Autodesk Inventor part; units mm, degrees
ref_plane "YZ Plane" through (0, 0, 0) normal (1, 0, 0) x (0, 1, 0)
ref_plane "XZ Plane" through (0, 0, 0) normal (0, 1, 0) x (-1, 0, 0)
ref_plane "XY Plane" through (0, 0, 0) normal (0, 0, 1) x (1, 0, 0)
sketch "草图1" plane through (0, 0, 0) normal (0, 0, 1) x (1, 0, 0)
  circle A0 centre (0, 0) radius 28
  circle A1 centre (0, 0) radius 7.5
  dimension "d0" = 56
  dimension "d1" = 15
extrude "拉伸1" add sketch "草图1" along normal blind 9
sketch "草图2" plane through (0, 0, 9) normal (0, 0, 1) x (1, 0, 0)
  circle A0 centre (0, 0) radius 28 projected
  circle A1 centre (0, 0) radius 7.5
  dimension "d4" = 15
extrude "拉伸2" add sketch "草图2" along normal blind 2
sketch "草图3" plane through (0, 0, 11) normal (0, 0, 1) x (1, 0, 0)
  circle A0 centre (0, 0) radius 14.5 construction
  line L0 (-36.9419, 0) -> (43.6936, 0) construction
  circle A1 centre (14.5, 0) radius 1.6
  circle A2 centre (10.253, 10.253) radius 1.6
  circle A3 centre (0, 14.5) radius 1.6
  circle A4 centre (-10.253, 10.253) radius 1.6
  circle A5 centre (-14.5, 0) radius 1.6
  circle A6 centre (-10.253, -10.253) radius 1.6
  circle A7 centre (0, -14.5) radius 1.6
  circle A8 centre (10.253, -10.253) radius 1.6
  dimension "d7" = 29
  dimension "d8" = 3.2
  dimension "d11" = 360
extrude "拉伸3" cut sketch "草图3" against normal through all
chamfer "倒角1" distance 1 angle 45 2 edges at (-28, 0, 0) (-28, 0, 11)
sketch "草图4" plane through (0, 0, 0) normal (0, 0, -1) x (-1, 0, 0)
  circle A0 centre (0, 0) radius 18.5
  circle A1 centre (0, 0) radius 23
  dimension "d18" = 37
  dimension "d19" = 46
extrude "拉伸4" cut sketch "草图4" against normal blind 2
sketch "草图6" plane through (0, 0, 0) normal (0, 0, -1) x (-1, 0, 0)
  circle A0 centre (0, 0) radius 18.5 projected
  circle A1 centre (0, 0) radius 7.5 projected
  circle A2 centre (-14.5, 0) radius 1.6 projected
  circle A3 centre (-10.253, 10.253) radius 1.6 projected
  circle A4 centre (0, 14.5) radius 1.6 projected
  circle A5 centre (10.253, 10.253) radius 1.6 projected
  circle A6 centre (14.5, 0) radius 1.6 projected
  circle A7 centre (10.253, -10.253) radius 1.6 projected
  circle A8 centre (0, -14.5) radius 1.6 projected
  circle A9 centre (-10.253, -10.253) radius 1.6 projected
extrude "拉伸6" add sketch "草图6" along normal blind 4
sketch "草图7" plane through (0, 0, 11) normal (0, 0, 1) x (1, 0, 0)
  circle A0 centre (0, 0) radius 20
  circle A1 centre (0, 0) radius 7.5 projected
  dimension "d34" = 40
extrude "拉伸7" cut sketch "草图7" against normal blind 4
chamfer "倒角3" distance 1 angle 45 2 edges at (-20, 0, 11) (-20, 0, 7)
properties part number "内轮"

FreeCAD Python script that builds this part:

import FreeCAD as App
import Part
import Sketcher
Q = App.Units.Quantity


def edges_at(feature, points):
    """Names of the edges that pass closest to the given points."""
    edges = feature.Shape.Edges
    near = lambda p: min(range(len(edges)), key=lambda i: edges[i].distToShape(Part.Vertex(*p))[0])
    return sorted({f"Edge{near(p) + 1}" for p in points})

doc = App.newDocument("Part")
params = doc.addObject("Spreadsheet::Sheet", "Params")
for row, (alias, value) in enumerate([
    ("sketch1_diameter", "56 mm"),
    ("sketch1_diameter2", "15 mm"),
    ("pad1_length", "9 mm"),
    ("sketch2_diameter", "15 mm"),
    ("sketch2_diameter2", "56 mm"),
    ("pad2_length", "2 mm"),
    ("sketch3_diameter", "3.2 mm"),
    ("chamfer_size", "1 mm"),
    ("sketch4_diameter", "46 mm"),
    ("sketch4_diameter2", "37 mm"),
    ("pocket2_length", "2 mm"),
    ("sketch5_diameter", "37 mm"),
    ("sketch5_diameter2", "15 mm"),
    ("sketch5_diameter3", "3.2 mm"),
    ("pad3_length", "4 mm"),
    ("sketch6_diameter", "40 mm"),
    ("sketch6_diameter2", "15 mm"),
    ("pocket3_length", "4 mm"),
    ("chamfer2_size", "1 mm"),
], start=1):
    params.set(f"A{row}", alias)
    params.set(f"B{row}", "=" + value)
    params.setAlias(f"B{row}", alias)

body = doc.addObject("PartDesign::Body", "Body")

sketch1 = body.newObject("Sketcher::SketchObject", "Sketch")
sketch1.AttachmentSupport = (doc.getObject("XY_Plane"), [""])
sketch1.MapMode = "FlatFace"
sketch1.addGeometry([
    Part.Circle(App.Vector(0, 0, 0), App.Vector(0, 0, 1), 28),
    Part.Circle(App.Vector(0, 0, 0), App.Vector(0, 0, 1), 8),
], False)
sketch1.addConstraint([
    Sketcher.Constraint("Coincident", 0, 3, -1, 1),
    Sketcher.Constraint("Coincident", 1, 3, -1, 1),
    Sketcher.Constraint("Diameter", 0, Q("56 mm")),
    Sketcher.Constraint("Diameter", 1, Q("15 mm")),
])
sketch1.setExpression("Constraints[2]", "Params.sketch1_diameter")
sketch1.setExpression("Constraints[3]", "Params.sketch1_diameter2")
pad1 = body.newObject("PartDesign::Pad", "Pad")
pad1.Profile = sketch1
pad1.setExpression("Length", "Params.pad1_length")

sketch2 = body.newObject("Sketcher::SketchObject", "Sketch001")
sketch2.AttachmentSupport = (doc.getObject("XY_Plane"), [""])
sketch2.MapMode = "FlatFace"
sketch2.AttachmentOffset = App.Placement(App.Vector(0, 0, 9), App.Rotation())
sketch2.addGeometry([
    Part.Circle(App.Vector(0, 0, 0), App.Vector(0, 0, 1), 28),
    Part.Circle(App.Vector(0, 0, 0), App.Vector(0, 0, 1), 8),
], False)
sketch2.addConstraint([
    Sketcher.Constraint("Coincident", 0, 3, -1, 1),
    Sketcher.Constraint("Coincident", 1, 3, -1, 1),
    Sketcher.Constraint("Diameter", 1, Q("15 mm")),
    Sketcher.Constraint("Diameter", 0, Q("56 mm")),
])
sketch2.setExpression("Constraints[2]", "Params.sketch2_diameter")
sketch2.setExpression("Constraints[3]", "Params.sketch2_diameter2")
pad2 = body.newObject("PartDesign::Pad", "Pad001")
pad2.Profile = sketch2
pad2.setExpression("Length", "Params.pad2_length")

sketch3 = body.newObject("Sketcher::SketchObject", "Sketch002")
sketch3.AttachmentSupport = (doc.getObject("XY_Plane"), [""])
sketch3.MapMode = "FlatFace"
sketch3.AttachmentOffset = App.Placement(App.Vector(0, 0, 11), App.Rotation())
sketch3.addGeometry([
    Part.Circle(App.Vector(14.5, 0, 0), App.Vector(0, 0, 1), 1.6),
    Part.Circle(App.Vector(10.3, 10.3, 0), App.Vector(0, 0, 1), 1.6),
    Part.Circle(App.Vector(0, 14.5, 0), App.Vector(0, 0, 1), 1.6),
    Part.Circle(App.Vector(-10.3, 10.3, 0), App.Vector(0, 0, 1), 1.6),
    Part.Circle(App.Vector(-14.5, 0, 0), App.Vector(0, 0, 1), 1.6),
    Part.Circle(App.Vector(-10.3, -10.3, 0), App.Vector(0, 0, 1), 1.6),
    Part.Circle(App.Vector(0, -14.5, 0), App.Vector(0, 0, 1), 1.6),
    Part.Circle(App.Vector(10.3, -10.3, 0), App.Vector(0, 0, 1), 1.6),
], False)
sketch3.addConstraint([
    Sketcher.Constraint("Equal", 0, 1),
    Sketcher.Constraint("Equal", 1, 2),
    Sketcher.Constraint("Equal", 2, 3),
    Sketcher.Constraint("Equal", 3, 4),
    Sketcher.Constraint("Equal", 4, 5),
    Sketcher.Constraint("Equal", 5, 6),
    Sketcher.Constraint("Equal", 6, 7),
    Sketcher.Constraint("Symmetric", 0, 3, 4, 3, -1, 1),
    Sketcher.Constraint("Symmetric", 1, 3, 5, 3, -1, 1),
    Sketcher.Constraint("Symmetric", 2, 3, 6, 3, -1, 1),
    Sketcher.Constraint("Symmetric", 3, 3, 7, 3, -1, 1),
    Sketcher.Constraint("Symmetric", 1, 3, 3, 3, -2),
    Sketcher.Constraint("PointOnObject", 0, 3, -1),
    Sketcher.Constraint("PointOnObject", 2, 3, -2),
    Sketcher.Constraint("Diameter", 0, Q("3.2 mm")),
    Sketcher.Constraint("DistanceX", 4, 3, 0, 3, Q("29 mm")),
    Sketcher.Constraint("DistanceY", -1, 1, 2, 3, Q("14.5 mm")),
    Sketcher.Constraint("DistanceX", -1, 1, 1, 3, Q("10.253 mm")),
    Sketcher.Constraint("DistanceY", -1, 1, 1, 3, Q("10.253 mm")),
])
sketch3.setExpression("Constraints[14]", "Params.sketch3_diameter")
pocket1 = body.newObject("PartDesign::Pocket", "Pocket")
pocket1.Profile = sketch3
pocket1.Type = "ThroughAll"
doc.recompute()

chamfer = body.newObject("PartDesign::Chamfer", "Chamfer")
chamfer.Base = (pocket1, edges_at(pocket1, [(-28, 0, 0), (-28, 0, 11)]))
chamfer.setExpression("Size", "Params.chamfer_size")

sketch4 = body.newObject("Sketcher::SketchObject", "Sketch003")
sketch4.AttachmentSupport = (doc.getObject("XY_Plane"), [""])
sketch4.MapMode = "FlatFace"
sketch4.addGeometry([
    Part.Circle(App.Vector(0, 0, 0), App.Vector(0, 0, 1), 23),
    Part.Circle(App.Vector(0, 0, 0), App.Vector(0, 0, 1), 18),
], False)
sketch4.addConstraint([
    Sketcher.Constraint("Coincident", 0, 3, -1, 1),
    Sketcher.Constraint("Coincident", 1, 3, -1, 1),
    Sketcher.Constraint("Diameter", 0, Q("46 mm")),
    Sketcher.Constraint("Diameter", 1, Q("37 mm")),
])
sketch4.setExpression("Constraints[2]", "Params.sketch4_diameter")
sketch4.setExpression("Constraints[3]", "Params.sketch4_diameter2")
pocket2 = body.newObject("PartDesign::Pocket", "Pocket001")
pocket2.Profile = sketch4
pocket2.setExpression("Length", "Params.pocket2_length")
pocket2.Reversed = True

sketch5 = body.newObject("Sketcher::SketchObject", "Sketch004")
sketch5.AttachmentSupport = (doc.getObject("XY_Plane"), [""])
sketch5.MapMode = "FlatFace"
sketch5.addGeometry([
    Part.Circle(App.Vector(0, 0, 0), App.Vector(0, 0, 1), 18.5),
    Part.Circle(App.Vector(10.3, -10.3, 0), App.Vector(0, 0, 1), 1.6),
    Part.Circle(App.Vector(0, -14.5, 0), App.Vector(0, 0, 1), 1.6),
    Part.Circle(App.Vector(-10.3, -10.3, 0), App.Vector(0, 0, 1), 1.6),
    Part.Circle(App.Vector(14.5, 0, 0), App.Vector(0, 0, 1), 1.6),
    Part.Circle(App.Vector(10.3, 10.3, 0), App.Vector(0, 0, 1), 1.6),
    Part.Circle(App.Vector(0, 0, 0), App.Vector(0, 0, 1), 7.5),
    Part.Circle(App.Vector(-14.5, 0, 0), App.Vector(0, 0, 1), 1.6),
    Part.Circle(App.Vector(0, 14.5, 0), App.Vector(0, 0, 1), 1.6),
    Part.Circle(App.Vector(-10.3, 10.3, 0), App.Vector(0, 0, 1), 1.6),
], False)
sketch5.addConstraint([
    Sketcher.Constraint("Coincident", 0, 3, -1, 1),
    Sketcher.Constraint("Coincident", 6, 3, -1, 1),
    Sketcher.Constraint("Equal", 1, 2),
    Sketcher.Constraint("Equal", 2, 3),
    Sketcher.Constraint("Equal", 3, 4),
    Sketcher.Constraint("Equal", 4, 5),
    Sketcher.Constraint("Equal", 5, 7),
    Sketcher.Constraint("Equal", 7, 8),
    Sketcher.Constraint("Equal", 8, 9),
    Sketcher.Constraint("Symmetric", 3, 3, 5, 3, -1, 1),
    Sketcher.Constraint("Symmetric", 4, 3, 7, 3, -1, 1),
    Sketcher.Constraint("Symmetric", 2, 3, 8, 3, -1, 1),
    Sketcher.Constraint("Symmetric", 1, 3, 9, 3, -1, 1),
    Sketcher.Constraint("Symmetric", 1, 3, 3, 3, -2),
    Sketcher.Constraint("PointOnObject", 2, 3, -2),
    Sketcher.Constraint("PointOnObject", 4, 3, -1),
    Sketcher.Constraint("Diameter", 0, Q("37 mm")),
    Sketcher.Constraint("Diameter", 6, Q("15 mm")),
    Sketcher.Constraint("Diameter", 1, Q("3.2 mm")),
    Sketcher.Constraint("DistanceY", 2, 3, -1, 1, Q("14.5 mm")),
    Sketcher.Constraint("DistanceX", -1, 1, 4, 3, Q("14.5 mm")),
    Sketcher.Constraint("DistanceX", -1, 1, 1, 3, Q("10.253 mm")),
    Sketcher.Constraint("DistanceY", 1, 3, -1, 1, Q("10.253 mm")),
])
sketch5.setExpression("Constraints[16]", "Params.sketch5_diameter")
sketch5.setExpression("Constraints[17]", "Params.sketch5_diameter2")
sketch5.setExpression("Constraints[18]", "Params.sketch5_diameter3")
pad3 = body.newObject("PartDesign::Pad", "Pad002")
pad3.Profile = sketch5
pad3.setExpression("Length", "Params.pad3_length")
pad3.Reversed = True

sketch6 = body.newObject("Sketcher::SketchObject", "Sketch005")
sketch6.AttachmentSupport = (doc.getObject("XY_Plane"), [""])
sketch6.MapMode = "FlatFace"
sketch6.AttachmentOffset = App.Placement(App.Vector(0, 0, 11), App.Rotation())
sketch6.addGeometry([
    Part.Circle(App.Vector(0, 0, 0), App.Vector(0, 0, 1), 20),
    Part.Circle(App.Vector(0, 0, 0), App.Vector(0, 0, 1), 8),
], False)
sketch6.addConstraint([
    Sketcher.Constraint("Coincident", 0, 3, -1, 1),
    Sketcher.Constraint("Coincident", 1, 3, -1, 1),
    Sketcher.Constraint("Diameter", 0, Q("40 mm")),
    Sketcher.Constraint("Diameter", 1, Q("15 mm")),
])
sketch6.setExpression("Constraints[2]", "Params.sketch6_diameter")
sketch6.setExpression("Constraints[3]", "Params.sketch6_diameter2")
pocket3 = body.newObject("PartDesign::Pocket", "Pocket002")
pocket3.Profile = sketch6
pocket3.setExpression("Length", "Params.pocket3_length")
doc.recompute()

chamfer2 = body.newObject("PartDesign::Chamfer", "Chamfer001")
chamfer2.Base = (pocket3, edges_at(pocket3, [(-20, 0, 11), (-20, 0, 7)]))
chamfer2.setExpression("Size", "Params.chamfer2_size")

doc.recompute()
